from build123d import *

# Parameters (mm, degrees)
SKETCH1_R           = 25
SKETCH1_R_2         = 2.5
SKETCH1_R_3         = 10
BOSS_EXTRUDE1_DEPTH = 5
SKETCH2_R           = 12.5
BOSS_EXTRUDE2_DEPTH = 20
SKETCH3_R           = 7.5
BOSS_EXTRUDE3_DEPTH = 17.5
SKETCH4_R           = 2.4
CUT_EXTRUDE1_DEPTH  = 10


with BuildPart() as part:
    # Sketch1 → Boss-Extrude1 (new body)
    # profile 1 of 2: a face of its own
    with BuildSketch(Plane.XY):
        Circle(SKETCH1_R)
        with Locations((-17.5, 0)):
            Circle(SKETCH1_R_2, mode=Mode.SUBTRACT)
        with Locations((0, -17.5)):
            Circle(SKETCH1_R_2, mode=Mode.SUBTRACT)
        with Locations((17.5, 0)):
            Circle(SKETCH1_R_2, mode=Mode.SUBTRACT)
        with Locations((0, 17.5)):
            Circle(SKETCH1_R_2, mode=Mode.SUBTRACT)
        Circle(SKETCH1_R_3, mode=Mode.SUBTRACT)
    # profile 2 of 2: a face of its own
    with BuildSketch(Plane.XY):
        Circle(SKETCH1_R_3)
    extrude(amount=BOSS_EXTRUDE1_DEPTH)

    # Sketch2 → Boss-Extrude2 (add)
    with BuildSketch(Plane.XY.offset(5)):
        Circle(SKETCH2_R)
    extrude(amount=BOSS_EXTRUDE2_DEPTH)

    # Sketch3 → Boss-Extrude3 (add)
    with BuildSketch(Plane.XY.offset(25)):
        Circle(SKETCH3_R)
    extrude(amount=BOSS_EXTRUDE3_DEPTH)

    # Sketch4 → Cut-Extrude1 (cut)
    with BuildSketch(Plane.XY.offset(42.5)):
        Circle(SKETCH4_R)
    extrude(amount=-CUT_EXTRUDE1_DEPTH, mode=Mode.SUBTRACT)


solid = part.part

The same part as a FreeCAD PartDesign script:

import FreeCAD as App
import Part
import Sketcher

doc = App.newDocument("Part")
body = doc.addObject("PartDesign::Body", "Body")

# Sketch on XY plane
sketch1 = body.newObject("Sketcher::SketchObject", "Sketch")
sketch1.AttachmentSupport = (doc.getObject("XY_Plane"), [""])
sketch1.MapMode = "FlatFace"
sketch1.addGeometry(Part.Circle(App.Vector(0, 0, 0), App.Vector(0, 0, 1), 25), False)
sketch1.addGeometry(Part.Circle(App.Vector(0, -17.5, 0), App.Vector(0, 0, 1), 2.5), False)
sketch1.addGeometry(Part.Circle(App.Vector(-17.5, 0, 0), App.Vector(0, 0, 1), 2.5), False)
sketch1.addGeometry(Part.Circle(App.Vector(17.5, 0, 0), App.Vector(0, 0, 1), 2.5), False)
sketch1.addGeometry(Part.Circle(App.Vector(0, 17.5, 0), App.Vector(0, 0, 1), 2.5), False)
sketch1.addConstraint(Sketcher.Constraint("Coincident", 0, 3, -1, 1))
sketch1.addConstraint(Sketcher.Constraint("Equal", 1, 2))
sketch1.addConstraint(Sketcher.Constraint("Equal", 2, 3))
sketch1.addConstraint(Sketcher.Constraint("Equal", 3, 4))
sketch1.addConstraint(Sketcher.Constraint("Symmetric", 2, 3, 3, 3, -1, 1))
sketch1.addConstraint(Sketcher.Constraint("Symmetric", 1, 3, 4, 3, -1, 1))
sketch1.addConstraint(Sketcher.Constraint("PointOnObject", 1, 3, -2))
sketch1.addConstraint(Sketcher.Constraint("PointOnObject", 2, 3, -1))
sketch1.addConstraint(Sketcher.Constraint("Diameter", 0, 50.0))
sketch1.addConstraint(Sketcher.Constraint("Diameter", 1, 5.0))
sketch1.addConstraint(Sketcher.Constraint("DistanceX", 2, 3, 3, 3, 35.0))
sketch1.addConstraint(Sketcher.Constraint("DistanceY", 1, 3, 4, 3, 35.0))
pad1 = body.newObject("PartDesign::Pad", "Pad")
pad1.Profile = sketch1
pad1.Length = 5

# Sketch on XY plane
sketch2 = body.newObject("Sketcher::SketchObject", "Sketch001")
sketch2.AttachmentSupport = (doc.getObject("XY_Plane"), [""])
sketch2.MapMode = "FlatFace"
sketch2.AttachmentOffset = App.Placement(App.Vector(0, 0, 5), App.Rotation())
sketch2.addGeometry(Part.Circle(App.Vector(0, 0, 0), App.Vector(0, 0, 1), 12), False)
sketch2.addConstraint(Sketcher.Constraint("Coincident", 0, 3, -1, 1))
sketch2.addConstraint(Sketcher.Constraint("Diameter", 0, 25.0))
pad2 = body.newObject("PartDesign::Pad", "Pad001")
pad2.Profile = sketch2
pad2.Length = 20

# Sketch on XY plane
sketch3 = body.newObject("Sketcher::SketchObject", "Sketch002")
sketch3.AttachmentSupport = (doc.getObject("XY_Plane"), [""])
sketch3.MapMode = "FlatFace"
sketch3.AttachmentOffset = App.Placement(App.Vector(0, 0, 25), App.Rotation())
sketch3.addGeometry(Part.Circle(App.Vector(0, 0, 0), App.Vector(0, 0, 1), 8), False)
sketch3.addConstraint(Sketcher.Constraint("Coincident", 0, 3, -1, 1))
sketch3.addConstraint(Sketcher.Constraint("Diameter", 0, 15.0))
pad3 = body.newObject("PartDesign::Pad", "Pad002")
pad3.Profile = sketch3
pad3.Length = 17.5

# Sketch on XY plane
sketch4 = body.newObject("Sketcher::SketchObject", "Sketch003")
sketch4.AttachmentSupport = (doc.getObject("XY_Plane"), [""])
sketch4.MapMode = "FlatFace"
sketch4.AttachmentOffset = App.Placement(App.Vector(0, 0, 42.5), App.Rotation())
sketch4.addGeometry(Part.Circle(App.Vector(0, 0, 0), App.Vector(0, 0, 1), 2.4), False)
sketch4.addConstraint(Sketcher.Constraint("Coincident", 0, 3, -1, 1))
sketch4.addConstraint(Sketcher.Constraint("Diameter", 0, 4.8))
pocket1 = body.newObject("PartDesign::Pocket", "Pocket")
pocket1.Profile = sketch4
pocket1.Length = 10

doc.recompute()
